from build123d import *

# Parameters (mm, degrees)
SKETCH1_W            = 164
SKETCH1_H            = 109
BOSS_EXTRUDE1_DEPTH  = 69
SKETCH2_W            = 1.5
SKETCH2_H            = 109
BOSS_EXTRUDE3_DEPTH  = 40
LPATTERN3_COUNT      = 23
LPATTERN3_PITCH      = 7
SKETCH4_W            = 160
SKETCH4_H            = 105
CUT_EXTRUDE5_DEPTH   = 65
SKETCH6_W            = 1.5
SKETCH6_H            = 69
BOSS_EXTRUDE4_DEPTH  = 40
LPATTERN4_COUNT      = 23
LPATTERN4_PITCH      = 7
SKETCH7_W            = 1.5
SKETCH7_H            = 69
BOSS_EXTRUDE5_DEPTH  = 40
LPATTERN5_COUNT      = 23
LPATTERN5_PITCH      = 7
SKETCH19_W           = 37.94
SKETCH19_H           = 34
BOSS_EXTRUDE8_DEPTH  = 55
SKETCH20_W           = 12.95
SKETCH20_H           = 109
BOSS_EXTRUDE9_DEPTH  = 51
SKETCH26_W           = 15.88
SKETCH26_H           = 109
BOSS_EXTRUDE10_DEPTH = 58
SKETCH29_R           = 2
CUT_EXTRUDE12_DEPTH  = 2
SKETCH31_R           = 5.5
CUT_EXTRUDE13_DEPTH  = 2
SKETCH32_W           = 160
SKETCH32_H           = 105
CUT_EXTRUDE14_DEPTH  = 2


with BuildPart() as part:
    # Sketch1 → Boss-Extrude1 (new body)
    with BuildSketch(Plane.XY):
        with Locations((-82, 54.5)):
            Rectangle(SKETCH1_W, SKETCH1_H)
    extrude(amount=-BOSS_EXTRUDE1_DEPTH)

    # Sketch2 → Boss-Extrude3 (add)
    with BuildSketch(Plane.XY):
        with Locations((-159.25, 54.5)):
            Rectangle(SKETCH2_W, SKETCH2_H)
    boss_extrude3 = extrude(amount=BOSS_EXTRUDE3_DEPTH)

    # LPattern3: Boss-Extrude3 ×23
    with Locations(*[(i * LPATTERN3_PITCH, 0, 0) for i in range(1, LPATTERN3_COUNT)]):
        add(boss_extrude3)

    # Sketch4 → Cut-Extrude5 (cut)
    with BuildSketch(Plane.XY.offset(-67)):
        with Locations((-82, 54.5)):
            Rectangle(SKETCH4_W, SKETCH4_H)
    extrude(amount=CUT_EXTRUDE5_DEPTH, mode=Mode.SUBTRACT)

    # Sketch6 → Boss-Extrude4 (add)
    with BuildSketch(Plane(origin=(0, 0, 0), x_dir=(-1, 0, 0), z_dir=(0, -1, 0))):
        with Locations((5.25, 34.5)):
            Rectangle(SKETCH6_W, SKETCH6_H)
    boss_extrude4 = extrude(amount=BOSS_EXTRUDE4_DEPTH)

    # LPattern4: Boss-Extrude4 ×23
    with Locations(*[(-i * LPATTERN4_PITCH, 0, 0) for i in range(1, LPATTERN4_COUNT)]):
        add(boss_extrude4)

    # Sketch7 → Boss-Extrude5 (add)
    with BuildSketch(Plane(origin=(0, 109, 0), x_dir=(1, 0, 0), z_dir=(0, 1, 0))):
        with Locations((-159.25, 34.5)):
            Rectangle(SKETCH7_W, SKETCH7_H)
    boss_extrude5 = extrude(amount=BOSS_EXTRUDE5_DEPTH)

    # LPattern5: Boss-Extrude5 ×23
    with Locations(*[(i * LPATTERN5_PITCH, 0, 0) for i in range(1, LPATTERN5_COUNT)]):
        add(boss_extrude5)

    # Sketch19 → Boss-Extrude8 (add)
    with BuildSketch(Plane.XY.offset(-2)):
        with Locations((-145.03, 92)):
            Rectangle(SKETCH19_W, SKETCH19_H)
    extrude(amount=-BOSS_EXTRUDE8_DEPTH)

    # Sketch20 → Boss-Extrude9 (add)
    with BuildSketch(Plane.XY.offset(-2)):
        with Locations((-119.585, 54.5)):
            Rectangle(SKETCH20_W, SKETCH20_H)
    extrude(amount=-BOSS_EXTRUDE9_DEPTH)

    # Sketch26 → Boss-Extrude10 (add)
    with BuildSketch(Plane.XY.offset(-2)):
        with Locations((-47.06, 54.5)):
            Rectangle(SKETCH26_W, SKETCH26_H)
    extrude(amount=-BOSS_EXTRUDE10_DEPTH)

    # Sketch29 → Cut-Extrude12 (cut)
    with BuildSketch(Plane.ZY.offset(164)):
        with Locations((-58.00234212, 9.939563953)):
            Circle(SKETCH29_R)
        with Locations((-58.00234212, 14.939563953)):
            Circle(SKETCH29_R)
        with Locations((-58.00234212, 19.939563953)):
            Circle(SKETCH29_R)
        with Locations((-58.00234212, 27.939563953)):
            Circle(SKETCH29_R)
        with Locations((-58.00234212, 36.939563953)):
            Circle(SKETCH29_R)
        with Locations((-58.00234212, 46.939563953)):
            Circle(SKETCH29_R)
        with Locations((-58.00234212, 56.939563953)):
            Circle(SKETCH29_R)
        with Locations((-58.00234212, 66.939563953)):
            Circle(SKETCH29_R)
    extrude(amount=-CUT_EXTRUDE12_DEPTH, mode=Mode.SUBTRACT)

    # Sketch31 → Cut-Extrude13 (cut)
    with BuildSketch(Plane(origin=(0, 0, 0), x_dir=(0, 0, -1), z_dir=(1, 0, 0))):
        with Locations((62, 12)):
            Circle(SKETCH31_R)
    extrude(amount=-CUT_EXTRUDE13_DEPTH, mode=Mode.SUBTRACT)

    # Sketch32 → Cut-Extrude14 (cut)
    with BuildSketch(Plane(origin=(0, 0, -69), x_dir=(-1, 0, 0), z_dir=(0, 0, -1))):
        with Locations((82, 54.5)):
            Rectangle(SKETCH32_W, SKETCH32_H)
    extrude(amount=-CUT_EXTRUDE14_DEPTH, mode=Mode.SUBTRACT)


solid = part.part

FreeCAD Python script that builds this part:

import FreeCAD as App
import Part
import Sketcher
Q = App.Units.Quantity

doc = App.newDocument("Part")
body = doc.addObject("PartDesign::Body", "Body")

sketch1 = body.newObject("Sketcher::SketchObject", "Sketch")
sketch1.AttachmentSupport = (doc.getObject("XY_Plane"), [""])
sketch1.MapMode = "FlatFace"
sketch1.addGeometry(Part.LineSegment(App.Vector(-164, 109, 0), App.Vector(-164, 0, 0)), False)
sketch1.addGeometry(Part.LineSegment(App.Vector(-164, 0, 0), App.Vector(0, 0, 0)), False)
sketch1.addGeometry(Part.LineSegment(App.Vector(0, 0, 0), App.Vector(0, 109, 0)), False)
sketch1.addGeometry(Part.LineSegment(App.Vector(0, 109, 0), App.Vector(-164, 109, 0)), False)
sketch1.addConstraint(Sketcher.Constraint("Coincident", 0, 2, 1, 1))
sketch1.addConstraint(Sketcher.Constraint("Coincident", 1, 2, 2, 1))
sketch1.addConstraint(Sketcher.Constraint("Coincident", 2, 2, 3, 1))
sketch1.addConstraint(Sketcher.Constraint("Coincident", 3, 2, 0, 1))
sketch1.addConstraint(Sketcher.Constraint("Vertical", 0))
sketch1.addConstraint(Sketcher.Constraint("Horizontal", 1))
sketch1.addConstraint(Sketcher.Constraint("Vertical", 2))
sketch1.addConstraint(Sketcher.Constraint("Horizontal", 3))
sketch1.addConstraint(Sketcher.Constraint("Coincident", 1, 2, -1, 1))
sketch1.addConstraint(Sketcher.Constraint("DistanceX", 1, 1, 1, 2, Q("164 mm")))
sketch1.addConstraint(Sketcher.Constraint("DistanceY", 0, 2, 0, 1, Q("109 mm")))
pad1 = body.newObject("PartDesign::Pad", "Pad")
pad1.Profile = sketch1
pad1.Length = 69
pad1.Reversed = True

sketch2 = body.newObject("Sketcher::SketchObject", "Sketch001")
sketch2.AttachmentSupport = (doc.getObject("XY_Plane"), [""])
sketch2.MapMode = "FlatFace"
sketch2.addGeometry(Part.LineSegment(App.Vector(-160, 109, 0), App.Vector(-160, 0, 0)), False)
sketch2.addGeometry(Part.LineSegment(App.Vector(-160, 0, 0), App.Vector(-158.5, 0, 0)), False)
sketch2.addGeometry(Part.LineSegment(App.Vector(-158.5, 0, 0), App.Vector(-158.5, 109, 0)), False)
sketch2.addGeometry(Part.LineSegment(App.Vector(-158.5, 109, 0), App.Vector(-160, 109, 0)), False)
sketch2.addConstraint(Sketcher.Constraint("Coincident", 0, 2, 1, 1))
sketch2.addConstraint(Sketcher.Constraint("Coincident", 1, 2, 2, 1))
sketch2.addConstraint(Sketcher.Constraint("Coincident", 2, 2, 3, 1))
sketch2.addConstraint(Sketcher.Constraint("Coincident", 3, 2, 0, 1))
sketch2.addConstraint(Sketcher.Constraint("Vertical", 0))
sketch2.addConstraint(Sketcher.Constraint("Horizontal", 1))
sketch2.addConstraint(Sketcher.Constraint("Vertical", 2))
sketch2.addConstraint(Sketcher.Constraint("Horizontal", 3))
sketch2.addConstraint(Sketcher.Constraint("PointOnObject", 0, 2, -1))
sketch2.addConstraint(Sketcher.Constraint("DistanceY", 0, 2, 0, 1, Q("109 mm")))
sketch2.addConstraint(Sketcher.Constraint("DistanceX", 1, 1, 1, 2, Q("1.5 mm")))
sketch2.addConstraint(Sketcher.Constraint("DistanceX", 0, 2, -1, 1, Q("160 mm")))
pad2 = body.newObject("PartDesign::Pad", "Pad001")
pad2.Profile = sketch2
pad2.Length = 40
doc.recompute()

linearpattern = body.newObject("PartDesign::LinearPattern", "LinearPattern")
linearpattern.Originals = [pad2]
linearpattern.Direction = (doc.getObject("X_Axis"), [""])
linearpattern.Mode = "offset"
linearpattern.Offset = 7
linearpattern.Occurrences = 23
body.Tip = linearpattern

sketch3 = body.newObject("Sketcher::SketchObject", "Sketch002")
sketch3.AttachmentSupport = (doc.getObject("XY_Plane"), [""])
sketch3.MapMode = "FlatFace"
sketch3.AttachmentOffset = App.Placement(App.Vector(0, 0, -67), App.Rotation())
sketch3.addGeometry(Part.LineSegment(App.Vector(-162, 107, 0), App.Vector(-162, 2, 0)), False)
sketch3.addGeometry(Part.LineSegment(App.Vector(-162, 2, 0), App.Vector(-2, 2, 0)), False)
sketch3.addGeometry(Part.LineSegment(App.Vector(-2, 2, 0), App.Vector(-2, 107, 0)), False)
sketch3.addGeometry(Part.LineSegment(App.Vector(-2, 107, 0), App.Vector(-162, 107, 0)), False)
sketch3.addConstraint(Sketcher.Constraint("Coincident", 0, 2, 1, 1))
sketch3.addConstraint(Sketcher.Constraint("Coincident", 1, 2, 2, 1))
sketch3.addConstraint(Sketcher.Constraint("Coincident", 2, 2, 3, 1))
sketch3.addConstraint(Sketcher.Constraint("Coincident", 3, 2, 0, 1))
sketch3.addConstraint(Sketcher.Constraint("Vertical", 0))
sketch3.addConstraint(Sketcher.Constraint("Horizontal", 1))
sketch3.addConstraint(Sketcher.Constraint("Vertical", 2))
sketch3.addConstraint(Sketcher.Constraint("Horizontal", 3))
sketch3.addConstraint(Sketcher.Constraint("DistanceX", 1, 1, 1, 2, Q("160 mm")))
sketch3.addConstraint(Sketcher.Constraint("DistanceY", 0, 2, 0, 1, Q("105 mm")))
sketch3.addConstraint(Sketcher.Constraint("DistanceX", 0, 2, -1, 1, Q("162 mm")))
sketch3.addConstraint(Sketcher.Constraint("DistanceY", -1, 1, 0, 2, Q("2 mm")))
pocket1 = body.newObject("PartDesign::Pocket", "Pocket")
pocket1.Profile = sketch3
pocket1.Length = 65
pocket1.Reversed = True

sketch4 = body.newObject("Sketcher::SketchObject", "Sketch003")
sketch4.AttachmentSupport = (doc.getObject("XZ_Plane"), [""])
sketch4.MapMode = "FlatFace"
sketch4.addGeometry(Part.LineSegment(App.Vector(-4.5, -69, 0), App.Vector(-4.5, 0, 0)), False)
sketch4.addGeometry(Part.LineSegment(App.Vector(-4.5, 0, 0), App.Vector(-6, 0, 0)), False)
sketch4.addGeometry(Part.LineSegment(App.Vector(-6, 0, 0), App.Vector(-6, -69, 0)), False)
sketch4.addGeometry(Part.LineSegment(App.Vector(-6, -69, 0), App.Vector(-4.5, -69, 0)), False)
sketch4.addConstraint(Sketcher.Constraint("Coincident", 0, 2, 1, 1))
sketch4.addConstraint(Sketcher.Constraint("Coincident", 1, 2, 2, 1))
sketch4.addConstraint(Sketcher.Constraint("Coincident", 2, 2, 3, 1))
sketch4.addConstraint(Sketcher.Constraint("Coincident", 3, 2, 0, 1))
sketch4.addConstraint(Sketcher.Constraint("Vertical", 0))
sketch4.addConstraint(Sketcher.Constraint("Horizontal", 1))
sketch4.addConstraint(Sketcher.Constraint("Vertical", 2))
sketch4.addConstraint(Sketcher.Constraint("Horizontal", 3))
sketch4.addConstraint(Sketcher.Constraint("PointOnObject", 0, 2, -1))
sketch4.addConstraint(Sketcher.Constraint("DistanceY", 0, 1, 0, 2, Q("69 mm")))
sketch4.addConstraint(Sketcher.Constraint("DistanceX", 1, 2, 1, 1, Q("1.5 mm")))
sketch4.addConstraint(Sketcher.Constraint("DistanceX", 1, 2, -1, 1, Q("6 mm")))
pad3 = body.newObject("PartDesign::Pad", "Pad002")
pad3.Profile = sketch4
pad3.Length = 40
doc.recompute()

linearpattern2 = body.newObject("PartDesign::LinearPattern", "LinearPattern001")
linearpattern2.Originals = [pad3]
linearpattern2.Direction = (doc.getObject("X_Axis"), [""])
linearpattern2.Mode = "offset"
linearpattern2.Offset = 7
linearpattern2.Occurrences = 23
linearpattern2.Reversed = True
body.Tip = linearpattern2

sketch5 = body.newObject("Sketcher::SketchObject", "Sketch004")
sketch5.AttachmentSupport = (doc.getObject("XZ_Plane"), [""])
sketch5.MapMode = "FlatFace"
sketch5.AttachmentOffset = App.Placement(App.Vector(0, 0, -109), App.Rotation())
sketch5.addGeometry(Part.LineSegment(App.Vector(-160, -69, 0), App.Vector(-160, 0, 0)), False)
sketch5.addGeometry(Part.LineSegment(App.Vector(-160, 0, 0), App.Vector(-158.5, 0, 0)), False)
sketch5.addGeometry(Part.LineSegment(App.Vector(-158.5, 0, 0), App.Vector(-158.5, -69, 0)), False)
sketch5.addGeometry(Part.LineSegment(App.Vector(-158.5, -69, 0), App.Vector(-160, -69, 0)), False)
sketch5.addConstraint(Sketcher.Constraint("Coincident", 0, 2, 1, 1))
sketch5.addConstraint(Sketcher.Constraint("Coincident", 1, 2, 2, 1))
sketch5.addConstraint(Sketcher.Constraint("Coincident", 2, 2, 3, 1))
sketch5.addConstraint(Sketcher.Constraint("Coincident", 3, 2, 0, 1))
sketch5.addConstraint(Sketcher.Constraint("Vertical", 0))
sketch5.addConstraint(Sketcher.Constraint("Horizontal", 1))
sketch5.addConstraint(Sketcher.Constraint("Vertical", 2))
sketch5.addConstraint(Sketcher.Constraint("Horizontal", 3))
sketch5.addConstraint(Sketcher.Constraint("PointOnObject", 0, 2, -1))
sketch5.addConstraint(Sketcher.Constraint("DistanceY", 0, 1, 0, 2, Q("69 mm")))
sketch5.addConstraint(Sketcher.Constraint("DistanceX", 1, 1, 1, 2, Q("1.5 mm")))
sketch5.addConstraint(Sketcher.Constraint("DistanceX", 0, 2, -1, 1, Q("160 mm")))
pad4 = body.newObject("PartDesign::Pad", "Pad003")
pad4.Profile = sketch5
pad4.Length = 40
pad4.Reversed = True
doc.recompute()

linearpattern3 = body.newObject("PartDesign::LinearPattern", "LinearPattern002")
linearpattern3.Originals = [pad4]
linearpattern3.Direction = (doc.getObject("X_Axis"), [""])
linearpattern3.Mode = "offset"
linearpattern3.Offset = 7
linearpattern3.Occurrences = 23
body.Tip = linearpattern3

sketch6 = body.newObject("Sketcher::SketchObject", "Sketch005")
sketch6.AttachmentSupport = (doc.getObject("XY_Plane"), [""])
sketch6.MapMode = "FlatFace"
sketch6.AttachmentOffset = App.Placement(App.Vector(0, 0, -2), App.Rotation())
sketch6.addGeometry(Part.LineSegment(App.Vector(-164, 109, 0), App.Vector(-164, 75, 0)), False)
sketch6.addGeometry(Part.LineSegment(App.Vector(-164, 75, 0), App.Vector(-126, 75, 0)), False)
sketch6.addGeometry(Part.LineSegment(App.Vector(-126, 75, 0), App.Vector(-126, 109, 0)), False)
sketch6.addGeometry(Part.LineSegment(App.Vector(-126, 109, 0), App.Vector(-164, 109, 0)), False)
sketch6.addConstraint(Sketcher.Constraint("Coincident", 0, 2, 1, 1))
sketch6.addConstraint(Sketcher.Constraint("Coincident", 1, 2, 2, 1))
sketch6.addConstraint(Sketcher.Constraint("Coincident", 2, 2, 3, 1))
sketch6.addConstraint(Sketcher.Constraint("Coincident", 3, 2, 0, 1))
sketch6.addConstraint(Sketcher.Constraint("Vertical", 0))
sketch6.addConstraint(Sketcher.Constraint("Horizontal", 1))
sketch6.addConstraint(Sketcher.Constraint("Vertical", 2))
sketch6.addConstraint(Sketcher.Constraint("Horizontal", 3))
sketch6.addConstraint(Sketcher.Constraint("DistanceY", 0, 2, 0, 1, Q("34 mm")))
sketch6.addConstraint(Sketcher.Constraint("DistanceX", 0, 2, -1, 1, Q("164 mm")))
sketch6.addConstraint(Sketcher.Constraint("DistanceY", -1, 1, 0, 2, Q("75 mm")))
sketch6.addConstraint(Sketcher.Constraint("DistanceX", 1, 1, 1, 2, Q("37.94 mm")))
pad5 = body.newObject("PartDesign::Pad", "Pad004")
pad5.Profile = sketch6
pad5.Length = 55
pad5.Reversed = True

sketch7 = body.newObject("Sketcher::SketchObject", "Sketch006")
sketch7.AttachmentSupport = (doc.getObject("XY_Plane"), [""])
sketch7.MapMode = "FlatFace"
sketch7.AttachmentOffset = App.Placement(App.Vector(0, 0, -2), App.Rotation())
sketch7.addGeometry(Part.LineSegment(App.Vector(-126, 109, 0), App.Vector(-126, 0, 0)), False)
sketch7.addGeometry(Part.LineSegment(App.Vector(-126, 0, 0), App.Vector(-113, 0, 0)), False)
sketch7.addGeometry(Part.LineSegment(App.Vector(-113, 0, 0), App.Vector(-113, 109, 0)), False)
sketch7.addGeometry(Part.LineSegment(App.Vector(-113, 109, 0), App.Vector(-126, 109, 0)), False)
sketch7.addConstraint(Sketcher.Constraint("Coincident", 0, 2, 1, 1))
sketch7.addConstraint(Sketcher.Constraint("Coincident", 1, 2, 2, 1))
sketch7.addConstraint(Sketcher.Constraint("Coincident", 2, 2, 3, 1))
sketch7.addConstraint(Sketcher.Constraint("Coincident", 3, 2, 0, 1))
sketch7.addConstraint(Sketcher.Constraint("Vertical", 0))
sketch7.addConstraint(Sketcher.Constraint("Horizontal", 1))
sketch7.addConstraint(Sketcher.Constraint("Vertical", 2))
sketch7.addConstraint(Sketcher.Constraint("Horizontal", 3))
sketch7.addConstraint(Sketcher.Constraint("PointOnObject", 0, 2, -1))
sketch7.addConstraint(Sketcher.Constraint("DistanceY", 0, 2, 0, 1, Q("109 mm")))
sketch7.addConstraint(Sketcher.Constraint("DistanceX", 1, 1, 1, 2, Q("12.95 mm")))
sketch7.addConstraint(Sketcher.Constraint("DistanceX", 0, 2, -1, 1, Q("126.06 mm")))
pad6 = body.newObject("PartDesign::Pad", "Pad005")
pad6.Profile = sketch7
pad6.Length = 51
pad6.Reversed = True

sketch8 = body.newObject("Sketcher::SketchObject", "Sketch007")
sketch8.AttachmentSupport = (doc.getObject("XY_Plane"), [""])
sketch8.MapMode = "FlatFace"
sketch8.AttachmentOffset = App.Placement(App.Vector(0, 0, -2), App.Rotation())
sketch8.addGeometry(Part.LineSegment(App.Vector(-55, 109, 0), App.Vector(-55, 0, 0)), False)
sketch8.addGeometry(Part.LineSegment(App.Vector(-55, 0, 0), App.Vector(-39, 0, 0)), False)
sketch8.addGeometry(Part.LineSegment(App.Vector(-39, 0, 0), App.Vector(-39, 109, 0)), False)
sketch8.addGeometry(Part.LineSegment(App.Vector(-39, 109, 0), App.Vector(-55, 109, 0)), False)
sketch8.addConstraint(Sketcher.Constraint("Coincident", 0, 2, 1, 1))
sketch8.addConstraint(Sketcher.Constraint("Coincident", 1, 2, 2, 1))
sketch8.addConstraint(Sketcher.Constraint("Coincident", 2, 2, 3, 1))
sketch8.addConstraint(Sketcher.Constraint("Coincident", 3, 2, 0, 1))
sketch8.addConstraint(Sketcher.Constraint("Vertical", 0))
sketch8.addConstraint(Sketcher.Constraint("Horizontal", 1))
sketch8.addConstraint(Sketcher.Constraint("Vertical", 2))
sketch8.addConstraint(Sketcher.Constraint("Horizontal", 3))
sketch8.addConstraint(Sketcher.Constraint("PointOnObject", 0, 2, -1))
sketch8.addConstraint(Sketcher.Constraint("DistanceY", 0, 2, 0, 1, Q("109 mm")))
sketch8.addConstraint(Sketcher.Constraint("DistanceX", 0, 2, -1, 1, Q("55 mm")))
sketch8.addConstraint(Sketcher.Constraint("DistanceX", 1, 1, 1, 2, Q("15.88 mm")))
pad7 = body.newObject("PartDesign::Pad", "Pad006")
pad7.Profile = sketch8
pad7.Length = 58
pad7.Reversed = True

sketch9 = body.newObject("Sketcher::SketchObject", "Sketch008")
sketch9.AttachmentSupport = (doc.getObject("YZ_Plane"), [""])
sketch9.MapMode = "FlatFace"
sketch9.AttachmentOffset = App.Placement(App.Vector(0, 0, -164), App.Rotation())
sketch9.addGeometry(Part.Circle(App.Vector(9.9, -58, 0), App.Vector(0, 0, 1), 2), False)
sketch9.addGeometry(Part.Circle(App.Vector(14.9, -58, 0), App.Vector(0, 0, 1), 2), False)
sketch9.addGeometry(Part.Circle(App.Vector(19.9, -58, 0), App.Vector(0, 0, 1), 2), False)
sketch9.addGeometry(Part.Circle(App.Vector(27.9, -58, 0), App.Vector(0, 0, 1), 2), False)
sketch9.addGeometry(Part.Circle(App.Vector(36.9, -58, 0), App.Vector(0, 0, 1), 2), False)
sketch9.addGeometry(Part.Circle(App.Vector(46.9, -58, 0), App.Vector(0, 0, 1), 2), False)
sketch9.addGeometry(Part.Circle(App.Vector(56.9, -58, 0), App.Vector(0, 0, 1), 2), False)
sketch9.addGeometry(Part.Circle(App.Vector(66.9, -58, 0), App.Vector(0, 0, 1), 2), False)
sketch9.addConstraint(Sketcher.Constraint("Equal", 0, 1))
sketch9.addConstraint(Sketcher.Constraint("Equal", 1, 2))
sketch9.addConstraint(Sketcher.Constraint("Equal", 2, 3))
sketch9.addConstraint(Sketcher.Constraint("Equal", 3, 4))
sketch9.addConstraint(Sketcher.Constraint("Equal", 4, 5))
sketch9.addConstraint(Sketcher.Constraint("Equal", 5, 6))
sketch9.addConstraint(Sketcher.Constraint("Equal", 6, 7))
sketch9.addConstraint(Sketcher.Constraint("Horizontal", 0, 3, 1, 3))
sketch9.addConstraint(Sketcher.Constraint("Horizontal", 1, 3, 2, 3))
sketch9.addConstraint(Sketcher.Constraint("Horizontal", 2, 3, 3, 3))
sketch9.addConstraint(Sketcher.Constraint("Horizontal", 3, 3, 4, 3))
sketch9.addConstraint(Sketcher.Constraint("Horizontal", 4, 3, 5, 3))
sketch9.addConstraint(Sketcher.Constraint("Horizontal", 5, 3, 6, 3))
sketch9.addConstraint(Sketcher.Constraint("Horizontal", 6, 3, 7, 3))
sketch9.addConstraint(Sketcher.Constraint("Diameter", 0, Q("4 mm")))
sketch9.addConstraint(Sketcher.Constraint("DistanceX", 0, 3, 1, 3, Q("5 mm")))
sketch9.addConstraint(Sketcher.Constraint("DistanceX", 1, 3, 2, 3, Q("5 mm")))
sketch9.addConstraint(Sketcher.Constraint("DistanceX", 2, 3, 3, 3, Q("8 mm")))
sketch9.addConstraint(Sketcher.Constraint("DistanceX", 3, 3, 4, 3, Q("9 mm")))
sketch9.addConstraint(Sketcher.Constraint("DistanceX", 4, 3, 5, 3, Q("10 mm")))
sketch9.addConstraint(Sketcher.Constraint("DistanceX", 5, 3, 6, 3, Q("10 mm")))
sketch9.addConstraint(Sketcher.Constraint("DistanceX", 6, 3, 7, 3, Q("10 mm")))
sketch9.addConstraint(Sketcher.Constraint("DistanceX", -1, 1, 0, 3, Q("9.939564 mm")))
sketch9.addConstraint(Sketcher.Constraint("DistanceY", 0, 3, -1, 1, Q("58.002342 mm")))
pocket2 = body.newObject("PartDesign::Pocket", "Pocket001")
pocket2.Profile = sketch9
pocket2.Length = 2
pocket2.Reversed = True

sketch10 = body.newObject("Sketcher::SketchObject", "Sketch009")
sketch10.AttachmentSupport = (doc.getObject("YZ_Plane"), [""])
sketch10.MapMode = "FlatFace"
sketch10.addGeometry(Part.Circle(App.Vector(12, -62, 0), App.Vector(0, 0, 1), 6), False)
sketch10.addConstraint(Sketcher.Constraint("Diameter", 0, Q("11 mm")))
sketch10.addConstraint(Sketcher.Constraint("DistanceX", -1, 1, 0, 3, Q("12 mm")))
sketch10.addConstraint(Sketcher.Constraint("DistanceY", 0, 3, -1, 1, Q("62 mm")))
pocket3 = body.newObject("PartDesign::Pocket", "Pocket002")
pocket3.Profile = sketch10
pocket3.Length = 2

sketch11 = body.newObject("Sketcher::SketchObject", "Sketch010")
sketch11.AttachmentSupport = (doc.getObject("XY_Plane"), [""])
sketch11.MapMode = "FlatFace"
sketch11.AttachmentOffset = App.Placement(App.Vector(0, 0, -69), App.Rotation())
sketch11.addGeometry(Part.LineSegment(App.Vector(-2, 107, 0), App.Vector(-2, 2, 0)), False)
sketch11.addGeometry(Part.LineSegment(App.Vector(-2, 2, 0), App.Vector(-162, 2, 0)), False)
sketch11.addGeometry(Part.LineSegment(App.Vector(-162, 2, 0), App.Vector(-162, 107, 0)), False)
sketch11.addGeometry(Part.LineSegment(App.Vector(-162, 107, 0), App.Vector(-2, 107, 0)), False)
sketch11.addConstraint(Sketcher.Constraint("Coincident", 0, 2, 1, 1))
sketch11.addConstraint(Sketcher.Constraint("Coincident", 1, 2, 2, 1))
sketch11.addConstraint(Sketcher.Constraint("Coincident", 2, 2, 3, 1))
sketch11.addConstraint(Sketcher.Constraint("Coincident", 3, 2, 0, 1))
sketch11.addConstraint(Sketcher.Constraint("Vertical", 0))
sketch11.addConstraint(Sketcher.Constraint("Horizontal", 1))
sketch11.addConstraint(Sketcher.Constraint("Vertical", 2))
sketch11.addConstraint(Sketcher.Constraint("Horizontal", 3))
sketch11.addConstraint(Sketcher.Constraint("DistanceX", 1, 2, 1, 1, Q("160 mm")))
sketch11.addConstraint(Sketcher.Constraint("DistanceY", 0, 2, 0, 1, Q("105 mm")))
sketch11.addConstraint(Sketcher.Constraint("DistanceX", 0, 2, -1, 1, Q("2 mm")))
sketch11.addConstraint(Sketcher.Constraint("DistanceY", -1, 1, 0, 2, Q("2 mm")))
pocket4 = body.newObject("PartDesign::Pocket", "Pocket003")
pocket4.Profile = sketch11
pocket4.Length = 2
pocket4.Reversed = True

doc.recompute()
